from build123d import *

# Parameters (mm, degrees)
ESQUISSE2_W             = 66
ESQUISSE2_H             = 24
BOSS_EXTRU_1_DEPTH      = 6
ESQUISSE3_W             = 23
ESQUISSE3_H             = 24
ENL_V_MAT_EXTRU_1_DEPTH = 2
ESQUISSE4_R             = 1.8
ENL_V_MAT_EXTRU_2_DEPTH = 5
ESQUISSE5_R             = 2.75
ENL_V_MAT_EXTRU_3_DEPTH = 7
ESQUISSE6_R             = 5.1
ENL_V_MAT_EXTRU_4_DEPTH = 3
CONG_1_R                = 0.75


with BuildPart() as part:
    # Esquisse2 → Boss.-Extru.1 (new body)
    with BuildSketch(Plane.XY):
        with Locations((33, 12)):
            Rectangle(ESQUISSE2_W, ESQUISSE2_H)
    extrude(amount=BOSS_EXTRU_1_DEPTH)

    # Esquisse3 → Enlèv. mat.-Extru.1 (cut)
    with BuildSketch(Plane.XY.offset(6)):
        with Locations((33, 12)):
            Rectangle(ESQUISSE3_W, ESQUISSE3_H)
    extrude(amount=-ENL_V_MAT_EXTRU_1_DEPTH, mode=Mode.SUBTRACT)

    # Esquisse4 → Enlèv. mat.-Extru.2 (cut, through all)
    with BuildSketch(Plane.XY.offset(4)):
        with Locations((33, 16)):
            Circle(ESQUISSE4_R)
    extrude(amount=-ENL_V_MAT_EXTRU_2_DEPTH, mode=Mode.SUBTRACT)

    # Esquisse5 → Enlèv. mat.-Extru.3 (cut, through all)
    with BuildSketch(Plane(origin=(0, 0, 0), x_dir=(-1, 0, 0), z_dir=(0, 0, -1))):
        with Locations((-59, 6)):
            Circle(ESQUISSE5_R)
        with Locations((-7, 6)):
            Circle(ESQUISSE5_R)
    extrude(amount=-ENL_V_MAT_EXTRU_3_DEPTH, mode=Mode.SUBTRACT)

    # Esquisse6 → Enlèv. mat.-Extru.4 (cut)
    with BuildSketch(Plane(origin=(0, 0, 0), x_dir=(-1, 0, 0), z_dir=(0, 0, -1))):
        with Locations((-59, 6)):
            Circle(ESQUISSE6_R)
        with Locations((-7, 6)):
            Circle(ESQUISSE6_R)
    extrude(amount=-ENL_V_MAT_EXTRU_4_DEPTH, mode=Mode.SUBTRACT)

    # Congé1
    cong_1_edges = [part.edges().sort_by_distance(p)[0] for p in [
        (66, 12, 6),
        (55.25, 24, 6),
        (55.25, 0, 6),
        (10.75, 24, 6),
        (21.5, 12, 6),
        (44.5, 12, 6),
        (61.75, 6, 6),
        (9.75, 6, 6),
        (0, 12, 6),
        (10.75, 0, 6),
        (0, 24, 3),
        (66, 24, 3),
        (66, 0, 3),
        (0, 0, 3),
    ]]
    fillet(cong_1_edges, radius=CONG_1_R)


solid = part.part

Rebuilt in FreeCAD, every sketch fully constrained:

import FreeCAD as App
import Part
import Sketcher

V = App.Vector
Q = App.Units.Quantity


def edges_at(feature, points):
    """Names of the edges that pass closest to the given points."""
    edges = feature.Shape.Edges
    near = lambda p: min(range(len(edges)), key=lambda i: edges[i].distToShape(Part.Vertex(*p))[0])
    return sorted({f"Edge{near(p) + 1}" for p in points})

doc = App.newDocument("Part")
body = doc.addObject("PartDesign::Body", "Body")

# Sketch on XY plane
sketch1 = body.newObject("Sketcher::SketchObject", "Sketch")
sketch1.AttachmentSupport = (doc.getObject("XY_Plane"), [""])
sketch1.MapMode = "FlatFace"
sketch1.addGeometry([
    Part.LineSegment(V(0, 24, 0), V(0, 0, 0)),
    Part.LineSegment(V(0, 0, 0), V(66, 0, 0)),
    Part.LineSegment(V(66, 0, 0), V(66, 24, 0)),
    Part.LineSegment(V(66, 24, 0), V(0, 24, 0)),
], False)
sketch1.addConstraint([
    Sketcher.Constraint("Coincident", 0, 2, 1, 1),
    Sketcher.Constraint("Coincident", 1, 2, 2, 1),
    Sketcher.Constraint("Coincident", 2, 2, 3, 1),
    Sketcher.Constraint("Coincident", 3, 2, 0, 1),
    Sketcher.Constraint("Vertical", 0),
    Sketcher.Constraint("Horizontal", 1),
    Sketcher.Constraint("Vertical", 2),
    Sketcher.Constraint("Horizontal", 3),
    Sketcher.Constraint("Coincident", 0, 2, -1, 1),
    Sketcher.Constraint("DistanceX", 1, 1, 1, 2, Q("66 mm")),
    Sketcher.Constraint("DistanceY", 0, 2, 0, 1, Q("24 mm")),
])
pad1 = body.newObject("PartDesign::Pad", "Pad")
pad1.Profile = sketch1
pad1.Length = 6

# Sketch on XY plane
sketch2 = body.newObject("Sketcher::SketchObject", "Sketch001")
sketch2.AttachmentSupport = (doc.getObject("XY_Plane"), [""])
sketch2.MapMode = "FlatFace"
sketch2.AttachmentOffset = App.Placement(V(0, 0, 6), App.Rotation())
sketch2.addGeometry([
    Part.LineSegment(V(21.5, 24, 0), V(21.5, 0, 0)),
    Part.LineSegment(V(21.5, 0, 0), V(44.5, 0, 0)),
    Part.LineSegment(V(44.5, 0, 0), V(44.5, 24, 0)),
    Part.LineSegment(V(44.5, 24, 0), V(21.5, 24, 0)),
], False)
sketch2.addConstraint([
    Sketcher.Constraint("Coincident", 0, 2, 1, 1),
    Sketcher.Constraint("Coincident", 1, 2, 2, 1),
    Sketcher.Constraint("Coincident", 2, 2, 3, 1),
    Sketcher.Constraint("Coincident", 3, 2, 0, 1),
    Sketcher.Constraint("Vertical", 0),
    Sketcher.Constraint("Horizontal", 1),
    Sketcher.Constraint("Vertical", 2),
    Sketcher.Constraint("Horizontal", 3),
    Sketcher.Constraint("PointOnObject", 0, 2, -1),
    Sketcher.Constraint("DistanceX", 1, 1, 1, 2, Q("23 mm")),
    Sketcher.Constraint("DistanceY", 0, 2, 0, 1, Q("24 mm")),
    Sketcher.Constraint("DistanceX", -1, 1, 0, 2, Q("21.5 mm")),
])
pocket1 = body.newObject("PartDesign::Pocket", "Pocket")
pocket1.Profile = sketch2
pocket1.Length = 2

# Sketch on XY plane
sketch3 = body.newObject("Sketcher::SketchObject", "Sketch002")
sketch3.AttachmentSupport = (doc.getObject("XY_Plane"), [""])
sketch3.MapMode = "FlatFace"
sketch3.AttachmentOffset = App.Placement(V(0, 0, 4), App.Rotation())
sketch3.addGeometry(Part.Circle(V(33, 16, 0), V(0, 0, 1), 1.8), False)
sketch3.addConstraint([
    Sketcher.Constraint("Diameter", 0, Q("3.6 mm")),
    Sketcher.Constraint("DistanceX", -1, 1, 0, 3, Q("33 mm")),
    Sketcher.Constraint("DistanceY", -1, 1, 0, 3, Q("16 mm")),
])
pocket2 = body.newObject("PartDesign::Pocket", "Pocket001")
pocket2.Profile = sketch3
pocket2.Type = "ThroughAll"

# Sketch on XY plane
sketch4 = body.newObject("Sketcher::SketchObject", "Sketch003")
sketch4.AttachmentSupport = (doc.getObject("XY_Plane"), [""])
sketch4.MapMode = "FlatFace"
sketch4.addGeometry([
    Part.Circle(V(59, 6, 0), V(0, 0, 1), 2.75),
    Part.Circle(V(7, 6, 0), V(0, 0, 1), 2.75),
], False)
sketch4.addConstraint([
    Sketcher.Constraint("Equal", 0, 1),
    Sketcher.Constraint("Horizontal", 0, 3, 1, 3),
    Sketcher.Constraint("Diameter", 0, Q("5.5 mm")),
    Sketcher.Constraint("DistanceX", -1, 1, 0, 3, Q("59 mm")),
    Sketcher.Constraint("DistanceY", -1, 1, 0, 3, Q("6 mm")),
    Sketcher.Constraint("DistanceX", -1, 1, 1, 3, Q("7 mm")),
])
pocket3 = body.newObject("PartDesign::Pocket", "Pocket002")
pocket3.Profile = sketch4
pocket3.Type = "ThroughAll"
pocket3.Reversed = True

# Sketch on XY plane
sketch5 = body.newObject("Sketcher::SketchObject", "Sketch004")
sketch5.AttachmentSupport = (doc.getObject("XY_Plane"), [""])
sketch5.MapMode = "FlatFace"
sketch5.addGeometry([
    Part.Circle(V(59, 6, 0), V(0, 0, 1), 5.1),
    Part.Circle(V(7, 6, 0), V(0, 0, 1), 5.1),
], False)
sketch5.addConstraint([
    Sketcher.Constraint("Equal", 0, 1),
    Sketcher.Constraint("Horizontal", 0, 3, 1, 3),
    Sketcher.Constraint("Diameter", 0, Q("10.2 mm")),
    Sketcher.Constraint("DistanceX", -1, 1, 0, 3, Q("59 mm")),
    Sketcher.Constraint("DistanceY", -1, 1, 0, 3, Q("6 mm")),
    Sketcher.Constraint("DistanceX", -1, 1, 1, 3, Q("7 mm")),
])
pocket4 = body.newObject("PartDesign::Pocket", "Pocket003")
pocket4.Profile = sketch5
pocket4.Length = 3
pocket4.Reversed = True
doc.recompute()

fillet = body.newObject("PartDesign::Fillet", "Fillet")
fillet.Base = (pocket4, edges_at(pocket4, [
    (66, 12, 6),
    (55.25, 24, 6),
    (55.25, 0, 6),
    (10.75, 24, 6),
    (21.5, 12, 6),
    (44.5, 12, 6),
    (61.75, 6, 6),
    (9.75, 6, 6),
    (0, 12, 6),
    (10.75, 0, 6),
    (0, 24, 3),
    (66, 24, 3),
    (66, 0, 3),
    (0, 0, 3),
]))
fillet.Radius = 0.75

doc.recompute()
